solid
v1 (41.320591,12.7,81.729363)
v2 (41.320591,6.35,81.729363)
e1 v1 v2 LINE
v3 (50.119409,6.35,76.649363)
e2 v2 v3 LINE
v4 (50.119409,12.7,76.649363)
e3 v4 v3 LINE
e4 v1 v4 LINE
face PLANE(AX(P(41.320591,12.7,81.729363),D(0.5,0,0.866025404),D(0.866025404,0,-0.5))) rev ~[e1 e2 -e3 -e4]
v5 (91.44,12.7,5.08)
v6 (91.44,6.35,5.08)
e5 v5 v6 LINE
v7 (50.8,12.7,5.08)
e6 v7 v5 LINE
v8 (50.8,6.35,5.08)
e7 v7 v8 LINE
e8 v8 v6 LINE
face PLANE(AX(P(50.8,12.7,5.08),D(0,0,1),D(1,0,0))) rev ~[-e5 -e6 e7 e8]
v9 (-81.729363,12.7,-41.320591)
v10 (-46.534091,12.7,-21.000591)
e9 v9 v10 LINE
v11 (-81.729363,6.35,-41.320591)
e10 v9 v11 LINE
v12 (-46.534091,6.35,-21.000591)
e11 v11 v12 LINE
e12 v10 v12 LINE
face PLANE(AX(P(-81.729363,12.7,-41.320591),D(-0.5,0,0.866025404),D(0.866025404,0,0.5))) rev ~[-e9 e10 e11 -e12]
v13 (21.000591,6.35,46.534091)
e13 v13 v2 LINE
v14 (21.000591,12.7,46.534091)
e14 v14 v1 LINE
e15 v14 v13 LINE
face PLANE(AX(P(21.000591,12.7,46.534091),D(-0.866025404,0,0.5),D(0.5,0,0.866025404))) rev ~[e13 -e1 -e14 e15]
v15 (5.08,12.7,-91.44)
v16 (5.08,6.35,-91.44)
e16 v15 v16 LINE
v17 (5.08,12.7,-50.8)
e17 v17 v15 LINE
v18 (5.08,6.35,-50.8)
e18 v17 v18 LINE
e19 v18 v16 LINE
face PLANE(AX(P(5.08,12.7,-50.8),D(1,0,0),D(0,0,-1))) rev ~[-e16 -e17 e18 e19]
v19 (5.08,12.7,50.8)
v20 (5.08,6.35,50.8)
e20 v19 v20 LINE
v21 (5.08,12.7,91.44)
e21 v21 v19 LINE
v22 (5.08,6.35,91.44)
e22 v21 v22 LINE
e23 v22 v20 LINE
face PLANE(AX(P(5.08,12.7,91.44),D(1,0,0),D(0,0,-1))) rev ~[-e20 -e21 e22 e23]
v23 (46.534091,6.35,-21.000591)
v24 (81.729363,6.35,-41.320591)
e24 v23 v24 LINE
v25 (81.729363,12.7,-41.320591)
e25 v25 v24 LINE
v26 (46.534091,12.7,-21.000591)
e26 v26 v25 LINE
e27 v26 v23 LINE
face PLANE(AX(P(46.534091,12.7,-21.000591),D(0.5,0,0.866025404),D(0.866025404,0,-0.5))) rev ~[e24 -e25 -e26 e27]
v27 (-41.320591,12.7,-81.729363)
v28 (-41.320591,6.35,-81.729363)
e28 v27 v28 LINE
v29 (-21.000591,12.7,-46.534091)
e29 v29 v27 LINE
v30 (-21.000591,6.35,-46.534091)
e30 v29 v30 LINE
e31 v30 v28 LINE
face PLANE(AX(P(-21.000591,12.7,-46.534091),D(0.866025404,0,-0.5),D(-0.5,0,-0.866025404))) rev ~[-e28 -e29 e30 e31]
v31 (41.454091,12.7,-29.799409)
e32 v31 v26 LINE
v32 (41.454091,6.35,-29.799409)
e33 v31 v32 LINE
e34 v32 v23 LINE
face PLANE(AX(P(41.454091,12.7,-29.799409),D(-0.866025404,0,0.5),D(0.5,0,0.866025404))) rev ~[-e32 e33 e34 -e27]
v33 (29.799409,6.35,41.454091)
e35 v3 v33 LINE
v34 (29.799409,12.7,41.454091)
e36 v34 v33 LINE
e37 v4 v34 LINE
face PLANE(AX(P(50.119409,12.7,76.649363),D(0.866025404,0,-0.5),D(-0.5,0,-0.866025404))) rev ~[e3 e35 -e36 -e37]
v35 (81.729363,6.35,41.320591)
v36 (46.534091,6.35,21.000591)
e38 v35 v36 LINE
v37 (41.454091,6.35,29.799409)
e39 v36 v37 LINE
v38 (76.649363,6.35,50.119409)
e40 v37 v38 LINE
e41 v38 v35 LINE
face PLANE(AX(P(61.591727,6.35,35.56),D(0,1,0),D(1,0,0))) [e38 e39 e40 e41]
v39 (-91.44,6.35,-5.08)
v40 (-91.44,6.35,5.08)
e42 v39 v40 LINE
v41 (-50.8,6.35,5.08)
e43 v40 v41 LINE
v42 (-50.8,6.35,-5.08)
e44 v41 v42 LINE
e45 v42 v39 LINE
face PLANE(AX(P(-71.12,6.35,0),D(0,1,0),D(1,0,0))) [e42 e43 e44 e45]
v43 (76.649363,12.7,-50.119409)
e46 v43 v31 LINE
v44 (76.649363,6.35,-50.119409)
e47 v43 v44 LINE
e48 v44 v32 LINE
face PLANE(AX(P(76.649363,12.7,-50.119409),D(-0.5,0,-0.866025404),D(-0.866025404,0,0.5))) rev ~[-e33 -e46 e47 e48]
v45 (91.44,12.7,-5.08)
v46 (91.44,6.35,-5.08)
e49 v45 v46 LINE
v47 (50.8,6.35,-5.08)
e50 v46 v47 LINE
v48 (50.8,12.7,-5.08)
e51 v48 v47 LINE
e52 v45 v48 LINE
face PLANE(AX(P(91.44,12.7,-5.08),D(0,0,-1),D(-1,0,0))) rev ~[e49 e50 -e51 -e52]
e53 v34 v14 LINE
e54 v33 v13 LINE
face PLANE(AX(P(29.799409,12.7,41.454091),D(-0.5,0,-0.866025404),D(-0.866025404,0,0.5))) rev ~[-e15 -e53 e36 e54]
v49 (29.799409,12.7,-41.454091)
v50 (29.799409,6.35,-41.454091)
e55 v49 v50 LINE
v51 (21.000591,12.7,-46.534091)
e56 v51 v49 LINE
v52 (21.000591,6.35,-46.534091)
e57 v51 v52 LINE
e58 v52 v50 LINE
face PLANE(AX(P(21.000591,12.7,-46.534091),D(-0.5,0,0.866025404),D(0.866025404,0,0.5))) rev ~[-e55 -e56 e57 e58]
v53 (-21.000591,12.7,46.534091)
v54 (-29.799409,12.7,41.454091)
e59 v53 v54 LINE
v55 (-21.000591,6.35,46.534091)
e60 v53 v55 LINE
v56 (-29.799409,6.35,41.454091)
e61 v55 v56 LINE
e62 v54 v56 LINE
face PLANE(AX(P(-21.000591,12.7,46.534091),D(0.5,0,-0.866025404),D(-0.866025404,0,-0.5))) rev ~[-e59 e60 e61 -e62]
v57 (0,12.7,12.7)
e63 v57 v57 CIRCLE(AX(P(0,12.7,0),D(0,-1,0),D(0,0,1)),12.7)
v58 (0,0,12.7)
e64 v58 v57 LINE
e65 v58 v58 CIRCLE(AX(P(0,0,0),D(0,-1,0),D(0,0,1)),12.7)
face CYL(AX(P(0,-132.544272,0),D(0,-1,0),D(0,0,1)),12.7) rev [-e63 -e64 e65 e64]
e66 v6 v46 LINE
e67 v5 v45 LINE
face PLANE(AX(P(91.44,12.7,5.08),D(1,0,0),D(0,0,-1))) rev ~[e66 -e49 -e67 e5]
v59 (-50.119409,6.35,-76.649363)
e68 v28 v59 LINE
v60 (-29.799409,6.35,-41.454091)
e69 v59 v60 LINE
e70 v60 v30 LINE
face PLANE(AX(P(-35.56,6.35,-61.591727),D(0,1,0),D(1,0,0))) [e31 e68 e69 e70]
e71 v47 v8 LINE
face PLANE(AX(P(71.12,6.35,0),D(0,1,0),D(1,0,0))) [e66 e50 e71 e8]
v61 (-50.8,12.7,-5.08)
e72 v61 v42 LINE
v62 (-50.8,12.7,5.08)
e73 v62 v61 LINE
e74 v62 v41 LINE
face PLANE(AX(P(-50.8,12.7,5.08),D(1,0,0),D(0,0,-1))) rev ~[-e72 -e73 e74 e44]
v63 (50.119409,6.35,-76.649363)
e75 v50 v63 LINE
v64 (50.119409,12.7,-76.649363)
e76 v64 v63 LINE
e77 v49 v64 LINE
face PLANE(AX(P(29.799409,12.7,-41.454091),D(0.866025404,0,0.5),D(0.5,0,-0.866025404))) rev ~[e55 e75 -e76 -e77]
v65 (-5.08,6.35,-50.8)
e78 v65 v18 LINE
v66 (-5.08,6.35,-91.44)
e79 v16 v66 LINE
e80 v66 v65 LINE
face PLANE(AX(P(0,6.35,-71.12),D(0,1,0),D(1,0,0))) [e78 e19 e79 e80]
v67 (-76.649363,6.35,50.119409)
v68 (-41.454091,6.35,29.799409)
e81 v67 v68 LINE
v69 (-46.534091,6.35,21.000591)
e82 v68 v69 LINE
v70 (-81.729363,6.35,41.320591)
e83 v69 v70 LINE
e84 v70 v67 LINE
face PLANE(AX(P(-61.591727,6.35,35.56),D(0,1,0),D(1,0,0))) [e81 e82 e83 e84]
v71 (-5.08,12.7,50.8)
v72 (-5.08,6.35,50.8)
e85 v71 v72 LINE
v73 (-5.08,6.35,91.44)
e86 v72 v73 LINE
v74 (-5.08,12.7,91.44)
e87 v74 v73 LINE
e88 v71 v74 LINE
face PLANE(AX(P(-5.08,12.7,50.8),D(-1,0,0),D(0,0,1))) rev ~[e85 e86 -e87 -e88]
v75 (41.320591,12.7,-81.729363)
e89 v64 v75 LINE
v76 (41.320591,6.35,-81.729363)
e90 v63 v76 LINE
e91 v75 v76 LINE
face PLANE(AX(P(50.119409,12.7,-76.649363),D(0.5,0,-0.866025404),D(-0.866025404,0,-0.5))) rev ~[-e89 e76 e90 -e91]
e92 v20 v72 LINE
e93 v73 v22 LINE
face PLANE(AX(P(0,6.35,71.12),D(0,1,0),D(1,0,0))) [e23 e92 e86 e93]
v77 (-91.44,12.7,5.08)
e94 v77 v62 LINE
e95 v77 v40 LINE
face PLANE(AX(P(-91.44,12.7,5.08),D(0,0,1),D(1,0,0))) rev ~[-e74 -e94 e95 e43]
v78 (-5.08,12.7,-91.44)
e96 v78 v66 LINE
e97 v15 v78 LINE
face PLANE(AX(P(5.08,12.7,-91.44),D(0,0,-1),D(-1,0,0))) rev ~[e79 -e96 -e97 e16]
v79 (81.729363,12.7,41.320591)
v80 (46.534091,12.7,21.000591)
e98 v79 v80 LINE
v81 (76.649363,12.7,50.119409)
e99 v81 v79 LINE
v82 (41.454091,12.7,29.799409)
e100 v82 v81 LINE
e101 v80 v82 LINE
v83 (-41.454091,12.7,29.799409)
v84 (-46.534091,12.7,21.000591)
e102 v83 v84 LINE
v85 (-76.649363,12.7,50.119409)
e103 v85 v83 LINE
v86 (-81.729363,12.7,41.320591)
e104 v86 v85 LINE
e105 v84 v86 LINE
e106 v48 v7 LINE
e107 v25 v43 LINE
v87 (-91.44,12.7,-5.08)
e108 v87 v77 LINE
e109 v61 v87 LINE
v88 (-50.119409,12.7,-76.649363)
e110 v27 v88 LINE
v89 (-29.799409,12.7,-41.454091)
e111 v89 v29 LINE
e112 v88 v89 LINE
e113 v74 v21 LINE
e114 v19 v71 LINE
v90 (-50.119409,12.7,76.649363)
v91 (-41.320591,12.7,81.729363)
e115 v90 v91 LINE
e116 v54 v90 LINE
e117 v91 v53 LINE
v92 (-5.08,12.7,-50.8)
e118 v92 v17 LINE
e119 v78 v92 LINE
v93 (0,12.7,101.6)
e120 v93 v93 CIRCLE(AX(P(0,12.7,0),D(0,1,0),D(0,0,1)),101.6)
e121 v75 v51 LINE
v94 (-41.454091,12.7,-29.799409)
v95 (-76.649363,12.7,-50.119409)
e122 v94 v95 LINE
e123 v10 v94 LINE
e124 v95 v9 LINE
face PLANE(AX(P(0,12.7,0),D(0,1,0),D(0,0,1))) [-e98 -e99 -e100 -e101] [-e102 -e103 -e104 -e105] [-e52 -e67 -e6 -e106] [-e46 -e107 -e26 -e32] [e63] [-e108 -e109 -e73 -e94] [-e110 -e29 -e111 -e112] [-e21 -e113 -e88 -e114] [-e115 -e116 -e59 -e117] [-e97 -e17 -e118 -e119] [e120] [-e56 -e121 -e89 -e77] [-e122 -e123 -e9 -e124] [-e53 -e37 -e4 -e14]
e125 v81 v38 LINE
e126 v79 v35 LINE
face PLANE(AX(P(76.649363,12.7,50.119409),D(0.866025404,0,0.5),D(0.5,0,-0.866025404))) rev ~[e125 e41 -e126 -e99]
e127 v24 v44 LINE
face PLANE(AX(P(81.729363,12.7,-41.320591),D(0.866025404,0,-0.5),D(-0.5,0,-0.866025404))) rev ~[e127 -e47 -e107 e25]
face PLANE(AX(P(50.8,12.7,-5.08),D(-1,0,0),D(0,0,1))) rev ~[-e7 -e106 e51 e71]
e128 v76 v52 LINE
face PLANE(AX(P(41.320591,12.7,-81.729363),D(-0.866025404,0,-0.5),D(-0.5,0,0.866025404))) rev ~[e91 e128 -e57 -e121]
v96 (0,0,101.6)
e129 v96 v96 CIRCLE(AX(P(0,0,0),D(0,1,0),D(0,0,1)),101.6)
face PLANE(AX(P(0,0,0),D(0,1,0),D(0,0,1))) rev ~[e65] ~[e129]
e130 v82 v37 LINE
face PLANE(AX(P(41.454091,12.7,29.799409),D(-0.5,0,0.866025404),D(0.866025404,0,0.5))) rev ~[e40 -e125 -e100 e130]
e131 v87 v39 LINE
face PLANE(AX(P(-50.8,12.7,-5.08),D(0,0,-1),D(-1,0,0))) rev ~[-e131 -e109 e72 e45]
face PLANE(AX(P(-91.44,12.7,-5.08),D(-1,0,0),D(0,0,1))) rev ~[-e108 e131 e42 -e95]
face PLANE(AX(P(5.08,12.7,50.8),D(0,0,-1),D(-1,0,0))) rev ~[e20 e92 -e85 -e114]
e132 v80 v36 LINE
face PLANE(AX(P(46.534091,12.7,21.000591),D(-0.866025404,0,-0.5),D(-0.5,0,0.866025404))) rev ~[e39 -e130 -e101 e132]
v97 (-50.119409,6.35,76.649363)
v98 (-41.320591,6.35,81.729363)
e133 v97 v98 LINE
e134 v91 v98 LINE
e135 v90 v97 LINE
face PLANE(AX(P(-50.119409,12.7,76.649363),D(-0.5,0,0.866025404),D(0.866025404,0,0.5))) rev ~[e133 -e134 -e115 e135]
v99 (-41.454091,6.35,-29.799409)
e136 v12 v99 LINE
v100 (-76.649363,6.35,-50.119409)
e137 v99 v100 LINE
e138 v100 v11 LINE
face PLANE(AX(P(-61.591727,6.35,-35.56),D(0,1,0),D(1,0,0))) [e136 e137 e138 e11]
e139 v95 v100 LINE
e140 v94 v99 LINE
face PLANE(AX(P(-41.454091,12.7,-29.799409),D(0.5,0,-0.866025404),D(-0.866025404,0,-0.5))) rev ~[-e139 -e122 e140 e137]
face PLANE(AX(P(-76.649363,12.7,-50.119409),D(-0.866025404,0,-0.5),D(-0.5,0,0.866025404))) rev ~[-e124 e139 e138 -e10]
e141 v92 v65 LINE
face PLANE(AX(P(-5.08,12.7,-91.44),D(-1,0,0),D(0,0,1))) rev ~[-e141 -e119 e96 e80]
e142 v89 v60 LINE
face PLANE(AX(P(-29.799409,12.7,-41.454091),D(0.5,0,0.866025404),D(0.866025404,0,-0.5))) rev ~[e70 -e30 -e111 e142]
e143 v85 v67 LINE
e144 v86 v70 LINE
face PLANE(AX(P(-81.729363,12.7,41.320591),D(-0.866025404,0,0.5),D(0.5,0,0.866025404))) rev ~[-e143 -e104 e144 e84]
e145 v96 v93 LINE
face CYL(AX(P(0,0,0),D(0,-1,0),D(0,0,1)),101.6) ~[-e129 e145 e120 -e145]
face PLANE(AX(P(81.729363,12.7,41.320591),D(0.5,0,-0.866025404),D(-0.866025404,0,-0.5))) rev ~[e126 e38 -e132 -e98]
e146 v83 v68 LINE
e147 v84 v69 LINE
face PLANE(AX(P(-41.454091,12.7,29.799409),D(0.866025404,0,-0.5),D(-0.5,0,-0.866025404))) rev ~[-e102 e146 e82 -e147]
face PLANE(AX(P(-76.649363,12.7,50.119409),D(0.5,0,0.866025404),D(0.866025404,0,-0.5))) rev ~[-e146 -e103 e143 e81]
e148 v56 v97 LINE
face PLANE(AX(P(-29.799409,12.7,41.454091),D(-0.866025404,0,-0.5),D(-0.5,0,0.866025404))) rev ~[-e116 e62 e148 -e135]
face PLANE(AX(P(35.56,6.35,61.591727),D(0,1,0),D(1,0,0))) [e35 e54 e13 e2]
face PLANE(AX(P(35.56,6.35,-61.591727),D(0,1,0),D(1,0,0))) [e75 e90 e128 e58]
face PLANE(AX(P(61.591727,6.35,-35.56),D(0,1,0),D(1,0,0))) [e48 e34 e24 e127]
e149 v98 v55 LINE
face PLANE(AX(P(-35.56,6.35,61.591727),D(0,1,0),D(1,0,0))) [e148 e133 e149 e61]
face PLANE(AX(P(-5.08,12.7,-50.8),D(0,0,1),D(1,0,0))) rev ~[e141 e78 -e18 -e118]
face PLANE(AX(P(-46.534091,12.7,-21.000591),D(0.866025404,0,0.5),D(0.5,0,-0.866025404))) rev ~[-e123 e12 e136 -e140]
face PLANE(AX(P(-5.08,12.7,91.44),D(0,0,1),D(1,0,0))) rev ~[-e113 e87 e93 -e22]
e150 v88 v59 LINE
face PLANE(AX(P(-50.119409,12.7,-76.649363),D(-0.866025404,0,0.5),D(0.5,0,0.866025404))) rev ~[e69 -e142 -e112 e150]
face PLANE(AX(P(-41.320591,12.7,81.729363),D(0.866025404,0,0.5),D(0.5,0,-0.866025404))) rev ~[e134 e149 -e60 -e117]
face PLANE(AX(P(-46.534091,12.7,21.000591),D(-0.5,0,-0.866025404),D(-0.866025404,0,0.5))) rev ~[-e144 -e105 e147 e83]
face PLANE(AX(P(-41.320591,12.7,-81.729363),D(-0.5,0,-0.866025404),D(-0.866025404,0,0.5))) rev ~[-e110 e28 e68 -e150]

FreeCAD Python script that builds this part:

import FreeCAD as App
import Part
import Sketcher
from FreeCAD import Vector
Q = App.Units.Quantity


def add_polygon(sketch, points):
    """Adds a closed chain of lines whose ends are joined by coincident constraints."""
    first, n = sketch.GeometryCount, len(points)
    for a, b in zip(points, points[1:] + points[:1]):
        sketch.addGeometry(Part.LineSegment(App.Vector(*a, 0), App.Vector(*b, 0)), False)
    for i in range(n):
        sketch.addConstraint(Sketcher.Constraint("Coincident", first + i, 2, first + (i + 1) % n, 1))

doc = App.newDocument("Part")
body = doc.addObject("PartDesign::Body", "Body")

sketch1 = body.newObject("Sketcher::SketchObject", "Sketch")
sketch1.AttachmentSupport = (doc.getObject("XZ_Plane"), [""])
sketch1.MapMode = "FlatFace"
sketch1.addGeometry(Part.Circle(Vector(0, 0, 0), Vector(0, 0, 1), 102), False)
sketch1.addConstraint([
    Sketcher.Constraint("Coincident", 0, 3, -1, 1),
    Sketcher.Constraint("Diameter", 0, Q("8 in")),
])
pad1 = body.newObject("PartDesign::Pad", "Pad")
pad1.Profile = sketch1
pad1.Length = Q("0.5 in")
pad1.Reversed = True

sketch2 = body.newObject("Sketcher::SketchObject", "Sketch001")
sketch2.AttachmentSupport = (doc.getObject("XZ_Plane"), [""])
sketch2.MapMode = "FlatFace"
sketch2.AttachmentOffset = App.Placement(Vector(0, 0, -0.5 * 25.4), App.Rotation())
add_polygon(sketch2, [(5, -51), (5, -91), (-5, -91), (-5, -51)])
add_polygon(sketch2, [(30, -41), (50, -77), (41, -82), (21, -47)])
add_polygon(sketch2, [(47, -21), (82, -41), (77, -50), (41, -30)])
add_polygon(sketch2, [(51, 5), (91, 5), (91, -5), (51, -5)])
add_polygon(sketch2, [(41, 30), (77, 50), (82, 41), (47, 21)])
add_polygon(sketch2, [(21, 47), (41, 82), (50, 77), (30, 41)])
add_polygon(sketch2, [(-5, 51), (-5, 91), (5, 91), (5, 51)])
add_polygon(sketch2, [(-30, 41), (-50, 77), (-41, 82), (-21, 47)])
add_polygon(sketch2, [(-47, 21), (-82, 41), (-77, 50), (-41, 30)])
add_polygon(sketch2, [(-51, -5), (-91, -5), (-91, 5), (-51, 5)])
add_polygon(sketch2, [(-41, -30), (-77, -50), (-82, -41), (-47, -21)])
add_polygon(sketch2, [(-21, -47), (-41, -82), (-50, -77), (-30, -41)])
sketch2.addConstraint([
    Sketcher.Constraint("Vertical", 0),
    Sketcher.Constraint("Horizontal", 1),
    Sketcher.Constraint("Vertical", 2),
    Sketcher.Constraint("Horizontal", 3),
    Sketcher.Constraint("Horizontal", 12),
    Sketcher.Constraint("Vertical", 13),
    Sketcher.Constraint("Horizontal", 14),
    Sketcher.Constraint("Vertical", 15),
    Sketcher.Constraint("Vertical", 24),
    Sketcher.Constraint("Horizontal", 25),
    Sketcher.Constraint("Vertical", 26),
    Sketcher.Constraint("Horizontal", 27),
    Sketcher.Constraint("Horizontal", 36),
    Sketcher.Constraint("Vertical", 37),
    Sketcher.Constraint("Horizontal", 38),
    Sketcher.Constraint("Vertical", 39),
    Sketcher.Constraint("Symmetric", 0, 2, 24, 2, -1, 1),
    Sketcher.Constraint("Symmetric", 2, 2, 26, 2, -1, 1),
    Sketcher.Constraint("Symmetric", 4, 2, 28, 2, -1, 1),
    Sketcher.Constraint("Symmetric", 5, 2, 29, 2, -1, 1),
    Sketcher.Constraint("Symmetric", 6, 2, 30, 2, -1, 1),
    Sketcher.Constraint("Symmetric", 7, 2, 31, 2, -1, 1),
    Sketcher.Constraint("Symmetric", 8, 2, 32, 2, -1, 1),
    Sketcher.Constraint("Symmetric", 9, 2, 33, 2, -1, 1),
    Sketcher.Constraint("Symmetric", 10, 2, 34, 2, -1, 1),
    Sketcher.Constraint("Symmetric", 11, 2, 35, 2, -1, 1),
    Sketcher.Constraint("Symmetric", 12, 2, 36, 2, -1, 1),
    Sketcher.Constraint("Symmetric", 14, 2, 38, 2, -1, 1),
    Sketcher.Constraint("Symmetric", 16, 2, 40, 2, -1, 1),
    Sketcher.Constraint("Symmetric", 17, 2, 41, 2, -1, 1),
    Sketcher.Constraint("Symmetric", 18, 2, 42, 2, -1, 1),
    Sketcher.Constraint("Symmetric", 19, 2, 43, 2, -1, 1),
    Sketcher.Constraint("Symmetric", 20, 2, 44, 2, -1, 1),
    Sketcher.Constraint("Symmetric", 21, 2, 45, 2, -1, 1),
    Sketcher.Constraint("Symmetric", 22, 2, 46, 2, -1, 1),
    Sketcher.Constraint("Symmetric", 23, 2, 47, 2, -1, 1),
    Sketcher.Constraint("Symmetric", 21, 2, 28, 2, -2),
    Sketcher.Constraint("Symmetric", 20, 2, 29, 2, -2),
    Sketcher.Constraint("Symmetric", 23, 2, 30, 2, -2),
    Sketcher.Constraint("Symmetric", 22, 2, 31, 2, -2),
    Sketcher.Constraint("Symmetric", 17, 2, 32, 2, -2),
    Sketcher.Constraint("Symmetric", 16, 2, 33, 2, -2),
    Sketcher.Constraint("Symmetric", 19, 2, 34, 2, -2),
    Sketcher.Constraint("Symmetric", 18, 2, 35, 2, -2),
    Sketcher.Constraint("Perpendicular", 4, 5),
    Sketcher.Constraint("Perpendicular", 5, 6),
    Sketcher.Constraint("Perpendicular", 6, 7),
    Sketcher.Constraint("Perpendicular", 8, 9),
    Sketcher.Constraint("Perpendicular", 9, 10),
    Sketcher.Constraint("Perpendicular", 10, 11),
    Sketcher.Constraint("Parallel", 7, 16),
    Sketcher.Constraint("Horizontal", 14, 2, 36, 2),
    Sketcher.Constraint("Vertical", 2, 2, 24, 2),
    Sketcher.Constraint("Equal", 38, 0),
    Sketcher.Constraint("Equal", 27, 13),
    Sketcher.Constraint("Equal", 6, 8),
    Sketcher.Constraint("Equal", 7, 9),
    Sketcher.Constraint("DistanceX", 1, 2, 1, 1, Q("0.4 in")),
    Sketcher.Constraint("DistanceX", 12, 1, 12, 2, Q("1.6 in")),
    Sketcher.Constraint("DistanceY", 2, 2, -1, 1, Q("2 in")),
    Sketcher.Constraint("DistanceX", -1, 1, 14, 2, Q("2 in")),
    Sketcher.Constraint("Angle", 4, Q("-60 deg")),
    Sketcher.Constraint("Distance", 4, Q("1.6 in")),
    Sketcher.Constraint("Distance", 5, Q("0.4 in")),
    Sketcher.Constraint("DistanceY", 11, 2, 16, 2, Q("2.8 in")),
    Sketcher.Constraint("DistanceX", 28, 2, 23, 2, Q("2.8 in")),
    Sketcher.Constraint("DistanceY", 7, 2, 8, 2, Q("0.1335 mm")),
    Sketcher.Constraint("DistanceX", 6, 2, 10, 2, Q("20.4535 mm")),
])
pocket1 = body.newObject("PartDesign::Pocket", "Pocket")
pocket1.Profile = sketch2
pocket1.Length = Q("0.25 in")
pocket1.Reversed = True

sketch3 = body.newObject("Sketcher::SketchObject", "Sketch002")
sketch3.AttachmentSupport = (doc.getObject("XZ_Plane"), [""])
sketch3.MapMode = "FlatFace"
sketch3.AttachmentOffset = App.Placement(Vector(0, 0, -0.5 * 25.4), App.Rotation())
sketch3.addGeometry(Part.Circle(Vector(0, 0, 0), Vector(0, 0, 1), 13), False)
sketch3.addConstraint([
    Sketcher.Constraint("Coincident", 0, 3, -1, 1),
    Sketcher.Constraint("Diameter", 0, Q("1 in")),
])
pocket2 = body.newObject("PartDesign::Pocket", "Pocket001")
pocket2.Profile = sketch3
pocket2.Type = "ThroughAll"
pocket2.Midplane = True

doc.recompute()
